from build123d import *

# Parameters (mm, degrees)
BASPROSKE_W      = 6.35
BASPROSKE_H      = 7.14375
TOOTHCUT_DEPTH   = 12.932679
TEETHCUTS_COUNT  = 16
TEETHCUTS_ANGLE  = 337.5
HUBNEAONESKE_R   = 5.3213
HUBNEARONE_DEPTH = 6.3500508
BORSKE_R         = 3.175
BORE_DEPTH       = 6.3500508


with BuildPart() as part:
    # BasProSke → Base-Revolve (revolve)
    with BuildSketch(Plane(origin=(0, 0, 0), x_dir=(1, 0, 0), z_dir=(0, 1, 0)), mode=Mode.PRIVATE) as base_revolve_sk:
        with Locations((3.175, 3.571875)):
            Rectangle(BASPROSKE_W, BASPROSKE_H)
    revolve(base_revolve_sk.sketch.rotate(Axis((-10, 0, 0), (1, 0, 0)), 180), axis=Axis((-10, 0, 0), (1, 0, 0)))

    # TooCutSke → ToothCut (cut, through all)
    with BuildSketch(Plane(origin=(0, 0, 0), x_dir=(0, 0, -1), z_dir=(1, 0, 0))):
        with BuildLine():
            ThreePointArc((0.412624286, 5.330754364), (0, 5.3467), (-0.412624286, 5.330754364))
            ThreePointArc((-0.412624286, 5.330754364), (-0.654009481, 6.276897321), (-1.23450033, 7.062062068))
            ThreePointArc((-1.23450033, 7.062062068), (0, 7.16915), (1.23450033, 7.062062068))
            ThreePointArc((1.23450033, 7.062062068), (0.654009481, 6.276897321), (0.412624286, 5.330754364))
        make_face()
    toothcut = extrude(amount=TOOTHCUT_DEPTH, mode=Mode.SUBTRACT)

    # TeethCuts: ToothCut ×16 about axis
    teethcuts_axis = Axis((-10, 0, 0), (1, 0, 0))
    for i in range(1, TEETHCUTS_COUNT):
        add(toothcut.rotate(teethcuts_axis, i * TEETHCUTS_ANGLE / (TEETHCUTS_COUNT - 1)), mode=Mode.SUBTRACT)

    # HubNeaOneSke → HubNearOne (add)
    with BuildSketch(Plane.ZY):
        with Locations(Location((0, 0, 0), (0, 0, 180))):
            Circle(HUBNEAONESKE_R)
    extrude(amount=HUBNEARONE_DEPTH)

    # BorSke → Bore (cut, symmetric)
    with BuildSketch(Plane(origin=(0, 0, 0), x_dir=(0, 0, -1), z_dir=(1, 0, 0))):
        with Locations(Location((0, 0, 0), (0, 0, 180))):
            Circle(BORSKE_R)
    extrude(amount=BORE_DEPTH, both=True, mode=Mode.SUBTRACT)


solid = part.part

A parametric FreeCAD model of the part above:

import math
import FreeCAD as App
import Part
import Sketcher
Q = App.Units.Quantity

doc = App.newDocument("Part")
body = doc.addObject("PartDesign::Body", "Body")

# Sketch on XZ plane
sketch1 = body.newObject("Sketcher::SketchObject", "Sketch")
sketch1.AttachmentSupport = (doc.getObject("XZ_Plane"), [""])
sketch1.MapMode = "FlatFace"
sketch1.addGeometry(Part.LineSegment(App.Vector(0, -7, 0), App.Vector(0, 0, 0)), False)
sketch1.addGeometry(Part.LineSegment(App.Vector(0, 0, 0), App.Vector(6, 0, 0)), False)
sketch1.addGeometry(Part.LineSegment(App.Vector(6, 0, 0), App.Vector(6, -7, 0)), False)
sketch1.addGeometry(Part.LineSegment(App.Vector(6, -7, 0), App.Vector(0, -7, 0)), False)
sketch1.addConstraint(Sketcher.Constraint("Coincident", 0, 2, 1, 1))
sketch1.addConstraint(Sketcher.Constraint("Coincident", 1, 2, 2, 1))
sketch1.addConstraint(Sketcher.Constraint("Coincident", 2, 2, 3, 1))
sketch1.addConstraint(Sketcher.Constraint("Coincident", 3, 2, 0, 1))
sketch1.addConstraint(Sketcher.Constraint("Vertical", 0))
sketch1.addConstraint(Sketcher.Constraint("Horizontal", 1))
sketch1.addConstraint(Sketcher.Constraint("Vertical", 2))
sketch1.addConstraint(Sketcher.Constraint("Horizontal", 3))
sketch1.addConstraint(Sketcher.Constraint("Coincident", 0, 2, -1, 1))
sketch1.addConstraint(Sketcher.Constraint("DistanceX", 1, 1, 1, 2, Q("0.25 in")))
sketch1.addConstraint(Sketcher.Constraint("DistanceY", 0, 1, 0, 2, Q("0.28125 in")))
revolution = body.newObject("PartDesign::Revolution", "Revolution")
revolution.Profile = sketch1
revolution.ReferenceAxis = (sketch1, ["H_Axis"])
revolution.Angle = 360

# Sketch on YZ plane
sketch2 = body.newObject("Sketcher::SketchObject", "Sketch001")
sketch2.AttachmentSupport = (doc.getObject("YZ_Plane"), [""])
sketch2.MapMode = "FlatFace"
sketch2.addGeometry(Part.ArcOfCircle(Part.Circle(App.Vector(0, 0, 0), App.Vector(0, 0, 1), 5.3), math.radians(-4.43), math.radians(4.43)), False)
sketch2.addGeometry(Part.ArcOfCircle(Part.Circle(App.Vector(5.2, -2.9, 0), App.Vector(0, 0, 1), 2.5), math.radians(42), math.radians(87)), False)
sketch2.addGeometry(Part.ArcOfCircle(Part.Circle(App.Vector(0, 0, 0), App.Vector(0, 0, 1), 7.2), math.radians(-9.92), math.radians(9.92)), False)
sketch2.addGeometry(Part.ArcOfCircle(Part.Circle(App.Vector(5.2, 2.9, 0), App.Vector(0, 0, 1), 2.5), math.radians(-87), math.radians(-42)), False)
sketch2.addConstraint(Sketcher.Constraint("Coincident", 0, 1, 1, 2))
sketch2.addConstraint(Sketcher.Constraint("Coincident", 1, 1, 2, 1))
sketch2.addConstraint(Sketcher.Constraint("Coincident", 2, 2, 3, 2))
sketch2.addConstraint(Sketcher.Constraint("Coincident", 3, 1, 0, 2))
sketch2.addConstraint(Sketcher.Constraint("Coincident", 0, 3, -1, 1))
sketch2.addConstraint(Sketcher.Constraint("Coincident", 2, 3, -1, 1))
sketch2.addConstraint(Sketcher.Constraint("Equal", 1, 3))
sketch2.addConstraint(Sketcher.Constraint("Symmetric", 1, 3, 3, 3, -1))
sketch2.addConstraint(Sketcher.Constraint("Radius", 1, Q("0.1 in")))
sketch2.addConstraint(Sketcher.Constraint("Radius", 0, Q("0.2105 in")))
sketch2.addConstraint(Sketcher.Constraint("Radius", 2, Q("7.16915 mm")))
sketch2.addConstraint(Sketcher.Constraint("DistanceY", 1, 1, -1, 1, Q("1.2345 mm")))
sketch2.addConstraint(Sketcher.Constraint("DistanceX", -1, 1, 1, 3, Q("5.187628 mm")))
pocket1 = body.newObject("PartDesign::Pocket", "Pocket")
pocket1.Profile = sketch2
pocket1.Type = "ThroughAll"
pocket1.Reversed = True
doc.recompute()

polarpattern = body.newObject("PartDesign::PolarPattern", "PolarPattern")
polarpattern.Originals = [pocket1]
polarpattern.Axis = (doc.getObject("X_Axis"), [""])
polarpattern.Angle = 360
polarpattern.Occurrences = 16
body.Tip = polarpattern

# Sketch on YZ plane
sketch3 = body.newObject("Sketcher::SketchObject", "Sketch002")
sketch3.AttachmentSupport = (doc.getObject("YZ_Plane"), [""])
sketch3.MapMode = "FlatFace"
sketch3.addGeometry(Part.Circle(App.Vector(0, 0, 0), App.Vector(0, 0, 1), 5), False)
sketch3.addConstraint(Sketcher.Constraint("Coincident", 0, 3, -1, 1))
sketch3.addConstraint(Sketcher.Constraint("Diameter", 0, Q("0.419 in")))
pad1 = body.newObject("PartDesign::Pad", "Pad")
pad1.Profile = sketch3
pad1.Length = 6.350051
pad1.Reversed = True

# Sketch on YZ plane
sketch4 = body.newObject("Sketcher::SketchObject", "Sketch003")
sketch4.AttachmentSupport = (doc.getObject("YZ_Plane"), [""])
sketch4.MapMode = "FlatFace"
sketch4.addGeometry(Part.Circle(App.Vector(0, 0, 0), App.Vector(0, 0, 1), 3.2), False)
sketch4.addConstraint(Sketcher.Constraint("Coincident", 0, 3, -1, 1))
sketch4.addConstraint(Sketcher.Constraint("Diameter", 0, Q("0.25 in")))
pocket2 = body.newObject("PartDesign::Pocket", "Pocket001")
pocket2.Profile = sketch4
pocket2.Length = 12.700102
pocket2.Midplane = True

doc.recompute()
